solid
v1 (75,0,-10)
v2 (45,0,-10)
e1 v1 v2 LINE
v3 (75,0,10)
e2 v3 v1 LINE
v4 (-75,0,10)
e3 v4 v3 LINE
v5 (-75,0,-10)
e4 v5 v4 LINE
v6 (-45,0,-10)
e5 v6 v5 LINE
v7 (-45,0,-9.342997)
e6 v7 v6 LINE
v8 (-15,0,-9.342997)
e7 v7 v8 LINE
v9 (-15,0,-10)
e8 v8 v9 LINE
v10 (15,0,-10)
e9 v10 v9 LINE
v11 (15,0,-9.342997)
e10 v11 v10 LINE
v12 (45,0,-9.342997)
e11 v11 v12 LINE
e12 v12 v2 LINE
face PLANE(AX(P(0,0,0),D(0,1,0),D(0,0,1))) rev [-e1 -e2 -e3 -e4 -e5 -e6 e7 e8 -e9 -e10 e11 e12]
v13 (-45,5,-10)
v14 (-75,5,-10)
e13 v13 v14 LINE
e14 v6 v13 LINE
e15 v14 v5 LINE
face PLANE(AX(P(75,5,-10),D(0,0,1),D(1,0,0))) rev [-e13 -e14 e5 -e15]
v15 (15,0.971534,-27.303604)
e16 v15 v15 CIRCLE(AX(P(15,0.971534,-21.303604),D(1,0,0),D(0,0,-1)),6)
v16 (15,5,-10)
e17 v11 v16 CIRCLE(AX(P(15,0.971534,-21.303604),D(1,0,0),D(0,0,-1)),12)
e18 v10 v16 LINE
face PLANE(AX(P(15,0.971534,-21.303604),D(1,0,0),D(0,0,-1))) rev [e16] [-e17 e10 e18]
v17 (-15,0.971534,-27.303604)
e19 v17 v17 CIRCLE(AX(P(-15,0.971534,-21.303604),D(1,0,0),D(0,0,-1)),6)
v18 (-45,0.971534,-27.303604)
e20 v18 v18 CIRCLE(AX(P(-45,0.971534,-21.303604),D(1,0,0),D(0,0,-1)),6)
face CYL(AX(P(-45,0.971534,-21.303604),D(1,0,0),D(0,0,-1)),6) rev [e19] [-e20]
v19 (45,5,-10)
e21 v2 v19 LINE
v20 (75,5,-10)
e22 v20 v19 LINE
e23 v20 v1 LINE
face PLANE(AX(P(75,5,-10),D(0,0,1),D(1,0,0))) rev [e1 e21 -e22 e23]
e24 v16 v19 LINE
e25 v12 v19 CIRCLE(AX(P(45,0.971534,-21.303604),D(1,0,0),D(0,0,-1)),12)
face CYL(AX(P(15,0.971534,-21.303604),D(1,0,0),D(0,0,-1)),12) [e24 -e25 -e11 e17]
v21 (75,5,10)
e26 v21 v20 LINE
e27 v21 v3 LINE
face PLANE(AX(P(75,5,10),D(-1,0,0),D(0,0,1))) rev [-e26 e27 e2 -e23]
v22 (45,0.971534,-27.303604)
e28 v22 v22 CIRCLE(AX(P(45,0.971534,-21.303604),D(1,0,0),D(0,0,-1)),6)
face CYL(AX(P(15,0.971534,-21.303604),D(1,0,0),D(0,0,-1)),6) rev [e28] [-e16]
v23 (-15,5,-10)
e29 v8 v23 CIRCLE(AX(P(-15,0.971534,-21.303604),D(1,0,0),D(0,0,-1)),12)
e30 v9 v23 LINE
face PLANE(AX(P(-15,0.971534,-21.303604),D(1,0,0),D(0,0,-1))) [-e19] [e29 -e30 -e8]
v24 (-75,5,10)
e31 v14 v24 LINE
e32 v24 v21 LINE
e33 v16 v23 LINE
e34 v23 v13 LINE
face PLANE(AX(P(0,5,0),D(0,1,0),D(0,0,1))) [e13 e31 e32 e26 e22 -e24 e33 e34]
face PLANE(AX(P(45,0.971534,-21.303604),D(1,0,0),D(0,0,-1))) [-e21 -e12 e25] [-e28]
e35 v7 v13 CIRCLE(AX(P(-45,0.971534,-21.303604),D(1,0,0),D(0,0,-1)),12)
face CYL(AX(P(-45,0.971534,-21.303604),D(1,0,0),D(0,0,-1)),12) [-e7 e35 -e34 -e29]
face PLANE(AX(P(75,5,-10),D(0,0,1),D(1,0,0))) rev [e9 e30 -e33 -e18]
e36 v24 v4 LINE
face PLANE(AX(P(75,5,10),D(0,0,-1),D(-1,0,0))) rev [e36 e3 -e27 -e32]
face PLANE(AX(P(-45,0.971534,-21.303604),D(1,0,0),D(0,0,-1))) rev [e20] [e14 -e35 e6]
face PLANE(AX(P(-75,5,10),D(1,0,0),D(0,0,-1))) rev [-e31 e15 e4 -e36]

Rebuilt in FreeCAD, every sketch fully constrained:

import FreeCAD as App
import Part
import Sketcher
from FreeCAD import Vector
Q = App.Units.Quantity

doc = App.newDocument("Part")
body = doc.addObject("PartDesign::Body", "Body")

sketch1 = doc.addObject("Sketcher::SketchObject", "Sketch")
body.addObject(sketch1)
sketch1.AttachmentSupport = (doc.XZ_Plane, [""])
sketch1.MapMode = "FlatFace"
sketch1.addGeometry([
    Part.LineSegment(Vector(-75, -10, 0), Vector(-75, 10, 0)),
    Part.LineSegment(Vector(-75, 10, 0), Vector(75, 10, 0)),
    Part.LineSegment(Vector(75, 10, 0), Vector(75, -10, 0)),
    Part.LineSegment(Vector(75, -10, 0), Vector(-75, -10, 0)),
], False)
sketch1.addConstraint([
    Sketcher.Constraint("Coincident", 0, 2, 1, 1),
    Sketcher.Constraint("Coincident", 1, 2, 2, 1),
    Sketcher.Constraint("Coincident", 2, 2, 3, 1),
    Sketcher.Constraint("Coincident", 3, 2, 0, 1),
    Sketcher.Constraint("Vertical", 0),
    Sketcher.Constraint("Horizontal", 1),
    Sketcher.Constraint("Vertical", 2),
    Sketcher.Constraint("Horizontal", 3),
    Sketcher.Constraint("Symmetric", 0, 2, 2, 2, -1, 1),
    Sketcher.Constraint("DistanceX", 1, 1, 1, 2, Q("150 mm")),
    Sketcher.Constraint("DistanceY", 0, 1, 0, 2, Q("20 mm")),
])
pad1 = doc.addObject("PartDesign::Pad", "Pad")
body.addObject(pad1)
pad1.Profile = sketch1
pad1.Length = 5
pad1.Reversed = True

sketch2 = doc.addObject("Sketcher::SketchObject", "Sketch001")
body.addObject(sketch2)
sketch2.AttachmentSupport = (doc.YZ_Plane, [""])
sketch2.MapMode = "FlatFace"
sketch2.AttachmentOffset = App.Placement(Vector(0, 0, 15), App.Rotation())
sketch2.addGeometry([
    Part.Circle(Vector(1, -21, 0), Vector(0, 0, 1), 12),
    Part.Circle(Vector(1, -21, 0), Vector(0, 0, 1), 6),
], False)
sketch2.addConstraint([
    Sketcher.Constraint("Coincident", 1, 3, 0, 3),
    Sketcher.Constraint("Diameter", 0, Q("24 mm")),
    Sketcher.Constraint("Diameter", 1, Q("12 mm")),
    Sketcher.Constraint("DistanceX", -1, 1, 0, 3, Q("0.971534 mm")),
    Sketcher.Constraint("DistanceY", 0, 3, -1, 1, Q("21.303604 mm")),
])
pad2 = doc.addObject("PartDesign::Pad", "Pad001")
body.addObject(pad2)
pad2.Profile = sketch2
pad2.Length = 30
doc.recompute()

linearpattern = doc.addObject("PartDesign::LinearPattern", "LinearPattern")
body.addObject(linearpattern)
linearpattern.Originals = [pad2]
linearpattern.Direction = (doc.X_Axis, [""])
linearpattern.Mode = "offset"
linearpattern.Offset = 60
linearpattern.Occurrences = 2
linearpattern.Reversed = True
body.Tip = linearpattern

doc.recompute()
